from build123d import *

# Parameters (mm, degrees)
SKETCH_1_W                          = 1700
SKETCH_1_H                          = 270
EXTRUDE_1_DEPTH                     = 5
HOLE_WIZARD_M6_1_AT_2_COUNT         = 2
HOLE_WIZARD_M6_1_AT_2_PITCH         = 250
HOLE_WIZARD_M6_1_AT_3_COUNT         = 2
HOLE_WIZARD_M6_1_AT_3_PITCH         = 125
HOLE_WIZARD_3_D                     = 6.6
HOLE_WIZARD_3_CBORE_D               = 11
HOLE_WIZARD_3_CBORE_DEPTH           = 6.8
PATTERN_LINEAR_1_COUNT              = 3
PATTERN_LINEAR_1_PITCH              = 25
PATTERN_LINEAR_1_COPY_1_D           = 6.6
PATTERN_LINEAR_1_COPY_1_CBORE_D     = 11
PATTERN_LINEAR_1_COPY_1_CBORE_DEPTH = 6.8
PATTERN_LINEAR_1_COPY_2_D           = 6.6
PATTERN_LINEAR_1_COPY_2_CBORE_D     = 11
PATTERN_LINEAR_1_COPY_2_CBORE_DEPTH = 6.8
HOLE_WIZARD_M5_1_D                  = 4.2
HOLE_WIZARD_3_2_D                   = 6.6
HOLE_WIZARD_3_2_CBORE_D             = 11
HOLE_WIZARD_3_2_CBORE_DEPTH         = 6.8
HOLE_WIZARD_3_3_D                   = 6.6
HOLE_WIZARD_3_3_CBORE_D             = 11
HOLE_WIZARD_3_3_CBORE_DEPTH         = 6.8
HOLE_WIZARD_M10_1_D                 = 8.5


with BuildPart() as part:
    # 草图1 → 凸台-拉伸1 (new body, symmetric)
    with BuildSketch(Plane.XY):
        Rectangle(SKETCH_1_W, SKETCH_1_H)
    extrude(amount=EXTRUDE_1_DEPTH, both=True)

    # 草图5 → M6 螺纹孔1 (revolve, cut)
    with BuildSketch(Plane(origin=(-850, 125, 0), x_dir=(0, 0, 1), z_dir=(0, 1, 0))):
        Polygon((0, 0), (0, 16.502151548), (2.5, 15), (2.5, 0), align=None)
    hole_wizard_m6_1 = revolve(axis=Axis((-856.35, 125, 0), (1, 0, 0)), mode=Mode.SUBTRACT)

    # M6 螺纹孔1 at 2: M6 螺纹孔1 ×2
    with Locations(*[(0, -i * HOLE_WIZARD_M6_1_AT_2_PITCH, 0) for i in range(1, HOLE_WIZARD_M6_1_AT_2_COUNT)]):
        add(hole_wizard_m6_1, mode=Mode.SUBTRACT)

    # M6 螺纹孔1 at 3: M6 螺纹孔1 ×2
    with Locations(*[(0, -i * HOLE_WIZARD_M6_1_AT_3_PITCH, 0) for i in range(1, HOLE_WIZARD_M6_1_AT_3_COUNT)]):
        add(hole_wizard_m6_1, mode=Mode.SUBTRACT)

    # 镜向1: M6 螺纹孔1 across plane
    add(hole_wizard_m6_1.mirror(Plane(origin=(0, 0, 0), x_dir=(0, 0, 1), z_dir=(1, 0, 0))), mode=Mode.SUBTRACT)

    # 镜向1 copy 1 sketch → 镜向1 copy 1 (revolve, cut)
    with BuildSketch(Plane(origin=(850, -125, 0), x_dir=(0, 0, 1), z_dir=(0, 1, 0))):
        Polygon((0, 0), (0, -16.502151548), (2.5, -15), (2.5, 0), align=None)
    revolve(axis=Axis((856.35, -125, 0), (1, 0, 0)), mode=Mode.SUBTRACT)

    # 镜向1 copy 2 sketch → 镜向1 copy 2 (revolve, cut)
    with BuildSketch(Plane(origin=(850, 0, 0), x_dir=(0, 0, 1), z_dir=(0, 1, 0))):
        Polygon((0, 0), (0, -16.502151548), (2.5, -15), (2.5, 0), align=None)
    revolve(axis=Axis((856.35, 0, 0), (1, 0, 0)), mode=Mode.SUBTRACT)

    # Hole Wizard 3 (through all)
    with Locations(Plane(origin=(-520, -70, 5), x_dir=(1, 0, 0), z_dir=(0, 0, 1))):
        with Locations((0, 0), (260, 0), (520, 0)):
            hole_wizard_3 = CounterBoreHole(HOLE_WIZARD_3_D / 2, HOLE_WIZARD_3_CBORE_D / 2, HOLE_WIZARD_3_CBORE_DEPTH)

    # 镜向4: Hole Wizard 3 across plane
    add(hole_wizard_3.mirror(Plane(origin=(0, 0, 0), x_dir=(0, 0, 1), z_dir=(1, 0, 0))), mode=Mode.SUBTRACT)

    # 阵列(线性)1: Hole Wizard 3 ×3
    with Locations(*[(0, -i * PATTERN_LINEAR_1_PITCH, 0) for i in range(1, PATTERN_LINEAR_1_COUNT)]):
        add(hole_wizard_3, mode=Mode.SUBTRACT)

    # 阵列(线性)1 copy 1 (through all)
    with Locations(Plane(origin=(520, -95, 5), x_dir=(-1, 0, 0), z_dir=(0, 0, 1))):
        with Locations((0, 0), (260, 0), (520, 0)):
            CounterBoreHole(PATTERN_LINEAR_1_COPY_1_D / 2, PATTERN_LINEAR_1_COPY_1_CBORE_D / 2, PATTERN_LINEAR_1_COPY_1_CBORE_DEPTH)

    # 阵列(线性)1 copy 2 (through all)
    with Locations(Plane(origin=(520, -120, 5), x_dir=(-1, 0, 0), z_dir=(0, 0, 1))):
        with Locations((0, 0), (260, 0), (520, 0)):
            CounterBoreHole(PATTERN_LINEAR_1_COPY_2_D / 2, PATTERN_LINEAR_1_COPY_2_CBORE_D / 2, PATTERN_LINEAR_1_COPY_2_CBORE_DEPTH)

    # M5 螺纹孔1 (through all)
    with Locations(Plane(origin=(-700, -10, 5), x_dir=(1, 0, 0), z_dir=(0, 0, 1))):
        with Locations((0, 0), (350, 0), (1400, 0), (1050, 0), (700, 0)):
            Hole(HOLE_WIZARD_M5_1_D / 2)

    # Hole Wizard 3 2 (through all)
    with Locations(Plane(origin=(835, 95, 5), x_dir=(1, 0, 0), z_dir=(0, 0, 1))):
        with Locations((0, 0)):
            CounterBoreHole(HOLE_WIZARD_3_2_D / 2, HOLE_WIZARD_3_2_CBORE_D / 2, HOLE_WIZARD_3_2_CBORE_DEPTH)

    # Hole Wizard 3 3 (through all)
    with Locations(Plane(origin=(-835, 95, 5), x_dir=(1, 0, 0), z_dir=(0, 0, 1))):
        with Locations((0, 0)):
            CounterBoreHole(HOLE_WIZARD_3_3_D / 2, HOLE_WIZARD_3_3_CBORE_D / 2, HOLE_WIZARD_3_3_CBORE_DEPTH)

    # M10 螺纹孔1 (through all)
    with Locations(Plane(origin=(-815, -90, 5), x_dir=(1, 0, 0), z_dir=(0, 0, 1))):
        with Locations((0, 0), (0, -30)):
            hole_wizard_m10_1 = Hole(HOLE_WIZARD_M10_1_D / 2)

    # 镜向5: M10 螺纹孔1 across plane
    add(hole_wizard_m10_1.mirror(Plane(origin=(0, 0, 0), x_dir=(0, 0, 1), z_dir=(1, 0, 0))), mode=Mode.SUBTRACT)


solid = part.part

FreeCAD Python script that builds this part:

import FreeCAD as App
import Part
import Sketcher
from FreeCAD import Vector
Q = App.Units.Quantity

doc = App.newDocument("Part")
body = doc.addObject("PartDesign::Body", "Body")

# Sketch on XY plane
sketch1 = body.newObject("Sketcher::SketchObject", "Sketch")
sketch1.AttachmentSupport = (doc.getObject("XY_Plane"), [""])
sketch1.MapMode = "FlatFace"
sketch1.addGeometry([
    Part.LineSegment(Vector(-850, 135, 0), Vector(-850, -135, 0)),
    Part.LineSegment(Vector(-850, -135, 0), Vector(850, -135, 0)),
    Part.LineSegment(Vector(850, -135, 0), Vector(850, 135, 0)),
    Part.LineSegment(Vector(850, 135, 0), Vector(-850, 135, 0)),
], False)
sketch1.addConstraint([
    Sketcher.Constraint("Coincident", 0, 2, 1, 1),
    Sketcher.Constraint("Coincident", 1, 2, 2, 1),
    Sketcher.Constraint("Coincident", 2, 2, 3, 1),
    Sketcher.Constraint("Coincident", 3, 2, 0, 1),
    Sketcher.Constraint("Vertical", 0),
    Sketcher.Constraint("Horizontal", 1),
    Sketcher.Constraint("Vertical", 2),
    Sketcher.Constraint("Horizontal", 3),
    Sketcher.Constraint("Symmetric", 0, 2, 2, 2, -1, 1),
    Sketcher.Constraint("DistanceX", 1, 1, 1, 2, Q("1700 mm")),
    Sketcher.Constraint("DistanceY", 0, 2, 0, 1, Q("270 mm")),
])
pad1 = body.newObject("PartDesign::Pad", "Pad")
pad1.Profile = sketch1
pad1.Length = 10
pad1.Midplane = True

# Sketch on XZ plane
sketch2 = body.newObject("Sketcher::SketchObject", "Sketch001")
sketch2.AttachmentSupport = (doc.getObject("XZ_Plane"), [""])
sketch2.MapMode = "FlatFace"
sketch2.AttachmentOffset = App.Placement(Vector(0, 0, -125), App.Rotation())
sketch2.addGeometry([
    Part.LineSegment(Vector(-833.5, 0, 0), Vector(-850, 0, 0)),
    Part.LineSegment(Vector(-850, 0, 0), Vector(-850, 2.5, 0)),
    Part.LineSegment(Vector(-850, 2.5, 0), Vector(-835, 2.5, 0)),
    Part.LineSegment(Vector(-835, 2.5, 0), Vector(-833.5, 0, 0)),
], False)
sketch2.addConstraint([
    Sketcher.Constraint("Coincident", 0, 2, 1, 1),
    Sketcher.Constraint("Coincident", 1, 2, 2, 1),
    Sketcher.Constraint("Coincident", 2, 2, 3, 1),
    Sketcher.Constraint("Coincident", 3, 2, 0, 1),
    Sketcher.Constraint("Horizontal", 0),
    Sketcher.Constraint("Vertical", 1),
    Sketcher.Constraint("Horizontal", 2),
    Sketcher.Constraint("PointOnObject", 0, 2, -1),
    Sketcher.Constraint("DistanceX", 2, 1, 2, 2, Q("15 mm")),
    Sketcher.Constraint("Angle", 3, Q("-59 deg")),
    Sketcher.Constraint("DistanceY", 1, 1, 1, 2, Q("2.5 mm")),
    Sketcher.Constraint("DistanceX", 0, 2, -1, 1, Q("850 mm")),
])
groove = body.newObject("PartDesign::Groove", "Groove")
groove.Profile = sketch2
groove.ReferenceAxis = (sketch2, ["H_Axis"])
groove.Angle = 360
doc.recompute()

linearpattern = body.newObject("PartDesign::LinearPattern", "LinearPattern")
linearpattern.Originals = [groove]
linearpattern.Direction = (doc.getObject("Y_Axis"), [""])
linearpattern.Mode = "offset"
linearpattern.Offset = 250
linearpattern.Occurrences = 2
linearpattern.Reversed = True
body.Tip = linearpattern
doc.recompute()

linearpattern2 = body.newObject("PartDesign::LinearPattern", "LinearPattern001")
linearpattern2.Originals = [groove]
linearpattern2.Direction = (doc.getObject("Y_Axis"), [""])
linearpattern2.Mode = "offset"
linearpattern2.Offset = 125
linearpattern2.Occurrences = 2
linearpattern2.Reversed = True
body.Tip = linearpattern2
doc.recompute()

mirrored = body.newObject("PartDesign::Mirrored", "Mirrored")
mirrored.Originals = [groove]
mirrored.MirrorPlane = (doc.getObject("YZ_Plane"), [""])
body.Tip = mirrored

# Sketch on XZ plane
sketch3 = body.newObject("Sketcher::SketchObject", "Sketch002")
sketch3.AttachmentSupport = (doc.getObject("XZ_Plane"), [""])
sketch3.MapMode = "FlatFace"
sketch3.AttachmentOffset = App.Placement(Vector(0, 0, 125), App.Rotation())
sketch3.addGeometry([
    Part.LineSegment(Vector(850, 0, 0), Vector(833.5, 0, 0)),
    Part.LineSegment(Vector(833.5, 0, 0), Vector(835, 2.5, 0)),
    Part.LineSegment(Vector(835, 2.5, 0), Vector(850, 2.5, 0)),
    Part.LineSegment(Vector(850, 2.5, 0), Vector(850, 0, 0)),
], False)
sketch3.addConstraint([
    Sketcher.Constraint("Coincident", 0, 2, 1, 1),
    Sketcher.Constraint("Coincident", 1, 2, 2, 1),
    Sketcher.Constraint("Coincident", 2, 2, 3, 1),
    Sketcher.Constraint("Coincident", 3, 2, 0, 1),
    Sketcher.Constraint("Horizontal", 0),
    Sketcher.Constraint("Horizontal", 2),
    Sketcher.Constraint("Vertical", 3),
    Sketcher.Constraint("PointOnObject", 0, 2, -1),
    Sketcher.Constraint("DistanceX", 2, 1, 2, 2, Q("15 mm")),
    Sketcher.Constraint("Angle", 1, Q("59 deg")),
    Sketcher.Constraint("DistanceY", 3, 2, 3, 1, Q("2.5 mm")),
    Sketcher.Constraint("DistanceX", -1, 1, 1, 2, Q("835 mm")),
])
groove2 = body.newObject("PartDesign::Groove", "Groove001")
groove2.Profile = sketch3
groove2.ReferenceAxis = (sketch3, ["H_Axis"])
groove2.Angle = 360

# Sketch on XZ plane
sketch4 = body.newObject("Sketcher::SketchObject", "Sketch003")
sketch4.AttachmentSupport = (doc.getObject("XZ_Plane"), [""])
sketch4.MapMode = "FlatFace"
sketch4.addGeometry([
    Part.LineSegment(Vector(850, 0, 0), Vector(833.5, 0, 0)),
    Part.LineSegment(Vector(833.5, 0, 0), Vector(835, 2.5, 0)),
    Part.LineSegment(Vector(835, 2.5, 0), Vector(850, 2.5, 0)),
    Part.LineSegment(Vector(850, 2.5, 0), Vector(850, 0, 0)),
], False)
sketch4.addConstraint([
    Sketcher.Constraint("Coincident", 0, 2, 1, 1),
    Sketcher.Constraint("Coincident", 1, 2, 2, 1),
    Sketcher.Constraint("Coincident", 2, 2, 3, 1),
    Sketcher.Constraint("Coincident", 3, 2, 0, 1),
    Sketcher.Constraint("Horizontal", 0),
    Sketcher.Constraint("Horizontal", 2),
    Sketcher.Constraint("Vertical", 3),
    Sketcher.Constraint("PointOnObject", 0, 2, -1),
    Sketcher.Constraint("DistanceX", 2, 1, 2, 2, Q("15 mm")),
    Sketcher.Constraint("Angle", 1, Q("59 deg")),
    Sketcher.Constraint("DistanceY", 3, 2, 3, 1, Q("2.5 mm")),
    Sketcher.Constraint("DistanceX", -1, 1, 1, 2, Q("835 mm")),
])
groove3 = body.newObject("PartDesign::Groove", "Groove002")
groove3.Profile = sketch4
groove3.ReferenceAxis = (sketch4, ["H_Axis"])
groove3.Angle = 360

# Sketch on XY plane
sketch5 = body.newObject("Sketcher::SketchObject", "Sketch004")
sketch5.AttachmentSupport = (doc.getObject("XY_Plane"), [""])
sketch5.MapMode = "FlatFace"
sketch5.AttachmentOffset = App.Placement(Vector(0, 0, 5), App.Rotation())
sketch5.addGeometry([
    Part.Circle(Vector(-520, -70, 0), Vector(0, 0, 1), 3.3),
    Part.Circle(Vector(-260, -70, 0), Vector(0, 0, 1), 3.3),
    Part.Circle(Vector(0, -70, 0), Vector(0, 0, 1), 3.3),
], False)
sketch5.addConstraint([
    Sketcher.Constraint("Equal", 0, 1),
    Sketcher.Constraint("Equal", 1, 2),
    Sketcher.Constraint("PointOnObject", 2, 3, -2),
    Sketcher.Constraint("Horizontal", 0, 3, 1, 3),
    Sketcher.Constraint("Horizontal", 1, 3, 2, 3),
    Sketcher.Constraint("Diameter", 0, Q("6.6 mm")),
    Sketcher.Constraint("DistanceX", 0, 3, -1, 1, Q("520 mm")),
    Sketcher.Constraint("DistanceY", 0, 3, -1, 1, Q("70 mm")),
    Sketcher.Constraint("DistanceX", 1, 3, -1, 1, Q("260 mm")),
])
doc.recompute()
hole = body.newObject("PartDesign::Hole", "Hole")
hole.Profile = sketch5
hole.ThreadType = "None"
hole.Diameter = 6.6
hole.DepthType = "ThroughAll"
hole.HoleCutType = "Counterbore"
hole.HoleCutDiameter = 11
hole.HoleCutDepth = 6.8
doc.recompute()

mirrored2 = body.newObject("PartDesign::Mirrored", "Mirrored001")
mirrored2.Originals = [hole]
mirrored2.MirrorPlane = (doc.getObject("YZ_Plane"), [""])
body.Tip = mirrored2
doc.recompute()

linearpattern3 = body.newObject("PartDesign::LinearPattern", "LinearPattern002")
linearpattern3.Originals = [hole]
linearpattern3.Direction = (doc.getObject("Y_Axis"), [""])
linearpattern3.Mode = "offset"
linearpattern3.Offset = 25
linearpattern3.Occurrences = 3
linearpattern3.Reversed = True
body.Tip = linearpattern3

# Sketch on XY plane
sketch6 = body.newObject("Sketcher::SketchObject", "Sketch005")
sketch6.AttachmentSupport = (doc.getObject("XY_Plane"), [""])
sketch6.MapMode = "FlatFace"
sketch6.AttachmentOffset = App.Placement(Vector(0, 0, 5), App.Rotation())
sketch6.addGeometry([
    Part.Circle(Vector(520, -95, 0), Vector(0, 0, 1), 3.3),
    Part.Circle(Vector(260, -95, 0), Vector(0, 0, 1), 3.3),
    Part.Circle(Vector(0, -95, 0), Vector(0, 0, 1), 3.3),
], False)
sketch6.addConstraint([
    Sketcher.Constraint("Equal", 0, 1),
    Sketcher.Constraint("Equal", 1, 2),
    Sketcher.Constraint("PointOnObject", 2, 3, -2),
    Sketcher.Constraint("Horizontal", 0, 3, 1, 3),
    Sketcher.Constraint("Horizontal", 1, 3, 2, 3),
    Sketcher.Constraint("Diameter", 0, Q("6.6 mm")),
    Sketcher.Constraint("DistanceX", -1, 1, 0, 3, Q("520 mm")),
    Sketcher.Constraint("DistanceY", 0, 3, -1, 1, Q("95 mm")),
    Sketcher.Constraint("DistanceX", -1, 1, 1, 3, Q("260 mm")),
])
doc.recompute()
hole2 = body.newObject("PartDesign::Hole", "Hole001")
hole2.Profile = sketch6
hole2.ThreadType = "None"
hole2.Diameter = 6.6
hole2.DepthType = "ThroughAll"
hole2.HoleCutType = "Counterbore"
hole2.HoleCutDiameter = 11
hole2.HoleCutDepth = 6.8

# Sketch on XY plane
sketch7 = body.newObject("Sketcher::SketchObject", "Sketch006")
sketch7.AttachmentSupport = (doc.getObject("XY_Plane"), [""])
sketch7.MapMode = "FlatFace"
sketch7.AttachmentOffset = App.Placement(Vector(0, 0, 5), App.Rotation())
sketch7.addGeometry([
    Part.Circle(Vector(520, -120, 0), Vector(0, 0, 1), 3.3),
    Part.Circle(Vector(260, -120, 0), Vector(0, 0, 1), 3.3),
    Part.Circle(Vector(0, -120, 0), Vector(0, 0, 1), 3.3),
], False)
sketch7.addConstraint([
    Sketcher.Constraint("Equal", 0, 1),
    Sketcher.Constraint("Equal", 1, 2),
    Sketcher.Constraint("PointOnObject", 2, 3, -2),
    Sketcher.Constraint("Horizontal", 0, 3, 1, 3),
    Sketcher.Constraint("Horizontal", 1, 3, 2, 3),
    Sketcher.Constraint("Diameter", 0, Q("6.6 mm")),
    Sketcher.Constraint("DistanceX", -1, 1, 0, 3, Q("520 mm")),
    Sketcher.Constraint("DistanceY", 0, 3, -1, 1, Q("120 mm")),
    Sketcher.Constraint("DistanceX", -1, 1, 1, 3, Q("260 mm")),
])
doc.recompute()
hole3 = body.newObject("PartDesign::Hole", "Hole002")
hole3.Profile = sketch7
hole3.ThreadType = "None"
hole3.Diameter = 6.6
hole3.DepthType = "ThroughAll"
hole3.HoleCutType = "Counterbore"
hole3.HoleCutDiameter = 11
hole3.HoleCutDepth = 6.8

# Sketch on XY plane
sketch8 = body.newObject("Sketcher::SketchObject", "Sketch007")
sketch8.AttachmentSupport = (doc.getObject("XY_Plane"), [""])
sketch8.MapMode = "FlatFace"
sketch8.AttachmentOffset = App.Placement(Vector(0, 0, 5), App.Rotation())
sketch8.addGeometry([
    Part.Circle(Vector(-700, -10, 0), Vector(0, 0, 1), 2.1),  # 0
    Part.Circle(Vector(-350, -10, 0), Vector(0, 0, 1), 2.1),  # 1
    Part.Circle(Vector(700, -10, 0), Vector(0, 0, 1), 2.1),  # 2
    Part.Circle(Vector(350, -10, 0), Vector(0, 0, 1), 2.1),  # 3
    Part.Circle(Vector(0, -10, 0), Vector(0, 0, 1), 2.1),  # 4
], False)
sketch8.addConstraint([
    Sketcher.Constraint("Equal", 0, 1),
    Sketcher.Constraint("Equal", 1, 2),
    Sketcher.Constraint("Equal", 2, 3),
    Sketcher.Constraint("Equal", 3, 4),
    Sketcher.Constraint("Symmetric", 0, 3, 2, 3, -2),
    Sketcher.Constraint("Symmetric", 1, 3, 3, 3, -2),
    Sketcher.Constraint("PointOnObject", 4, 3, -2),
    Sketcher.Constraint("Horizontal", 0, 3, 1, 3),
    Sketcher.Constraint("Horizontal", 3, 3, 4, 3),
    Sketcher.Constraint("Diameter", 0, Q("4.2 mm")),
    Sketcher.Constraint("DistanceX", 0, 3, -1, 1, Q("700 mm")),
    Sketcher.Constraint("DistanceY", 0, 3, -1, 1, Q("10 mm")),
    Sketcher.Constraint("DistanceX", 1, 3, -1, 1, Q("350 mm")),
])
doc.recompute()
hole4 = body.newObject("PartDesign::Hole", "Hole003")
hole4.Profile = sketch8
hole4.ThreadType = "None"
hole4.Diameter = 4.2
hole4.DepthType = "ThroughAll"

# Sketch on XY plane
sketch9 = body.newObject("Sketcher::SketchObject", "Sketch008")
sketch9.AttachmentSupport = (doc.getObject("XY_Plane"), [""])
sketch9.MapMode = "FlatFace"
sketch9.AttachmentOffset = App.Placement(Vector(0, 0, 5), App.Rotation())
sketch9.addGeometry(Part.Circle(Vector(835, 95, 0), Vector(0, 0, 1), 3.3), False)
sketch9.addConstraint([
    Sketcher.Constraint("Diameter", 0, Q("6.6 mm")),
    Sketcher.Constraint("DistanceX", -1, 1, 0, 3, Q("835 mm")),
    Sketcher.Constraint("DistanceY", -1, 1, 0, 3, Q("95 mm")),
])
doc.recompute()
hole5 = body.newObject("PartDesign::Hole", "Hole004")
hole5.Profile = sketch9
hole5.ThreadType = "None"
hole5.Diameter = 6.6
hole5.DepthType = "ThroughAll"
hole5.HoleCutType = "Counterbore"
hole5.HoleCutDiameter = 11
hole5.HoleCutDepth = 6.8

# Sketch on XY plane
sketch10 = body.newObject("Sketcher::SketchObject", "Sketch009")
sketch10.AttachmentSupport = (doc.getObject("XY_Plane"), [""])
sketch10.MapMode = "FlatFace"
sketch10.AttachmentOffset = App.Placement(Vector(0, 0, 5), App.Rotation())
sketch10.addGeometry(Part.Circle(Vector(-835, 95, 0), Vector(0, 0, 1), 3.3), False)
sketch10.addConstraint([
    Sketcher.Constraint("Diameter", 0, Q("6.6 mm")),
    Sketcher.Constraint("DistanceX", 0, 3, -1, 1, Q("835 mm")),
    Sketcher.Constraint("DistanceY", -1, 1, 0, 3, Q("95 mm")),
])
doc.recompute()
hole6 = body.newObject("PartDesign::Hole", "Hole005")
hole6.Profile = sketch10
hole6.ThreadType = "None"
hole6.Diameter = 6.6
hole6.DepthType = "ThroughAll"
hole6.HoleCutType = "Counterbore"
hole6.HoleCutDiameter = 11
hole6.HoleCutDepth = 6.8

# Sketch on XY plane
sketch11 = body.newObject("Sketcher::SketchObject", "Sketch010")
sketch11.AttachmentSupport = (doc.getObject("XY_Plane"), [""])
sketch11.MapMode = "FlatFace"
sketch11.AttachmentOffset = App.Placement(Vector(0, 0, 5), App.Rotation())
sketch11.addGeometry([
    Part.Circle(Vector(-815, -90, 0), Vector(0, 0, 1), 4.2),
    Part.Circle(Vector(-815, -120, 0), Vector(0, 0, 1), 4.2),
], False)
sketch11.addConstraint([
    Sketcher.Constraint("Equal", 0, 1),
    Sketcher.Constraint("Vertical", 0, 3, 1, 3),
    Sketcher.Constraint("Diameter", 0, Q("8.5 mm")),
    Sketcher.Constraint("DistanceX", 0, 3, -1, 1, Q("815 mm")),
    Sketcher.Constraint("DistanceY", 0, 3, -1, 1, Q("90 mm")),
    Sketcher.Constraint("DistanceY", 1, 3, -1, 1, Q("120 mm")),
])
doc.recompute()
hole7 = body.newObject("PartDesign::Hole", "Hole006")
hole7.Profile = sketch11
hole7.ThreadType = "None"
hole7.Diameter = 8.5
hole7.DepthType = "ThroughAll"
doc.recompute()

mirrored3 = body.newObject("PartDesign::Mirrored", "Mirrored002")
mirrored3.Originals = [hole7]
mirrored3.MirrorPlane = (doc.getObject("YZ_Plane"), [""])
body.Tip = mirrored3

doc.recompute()
